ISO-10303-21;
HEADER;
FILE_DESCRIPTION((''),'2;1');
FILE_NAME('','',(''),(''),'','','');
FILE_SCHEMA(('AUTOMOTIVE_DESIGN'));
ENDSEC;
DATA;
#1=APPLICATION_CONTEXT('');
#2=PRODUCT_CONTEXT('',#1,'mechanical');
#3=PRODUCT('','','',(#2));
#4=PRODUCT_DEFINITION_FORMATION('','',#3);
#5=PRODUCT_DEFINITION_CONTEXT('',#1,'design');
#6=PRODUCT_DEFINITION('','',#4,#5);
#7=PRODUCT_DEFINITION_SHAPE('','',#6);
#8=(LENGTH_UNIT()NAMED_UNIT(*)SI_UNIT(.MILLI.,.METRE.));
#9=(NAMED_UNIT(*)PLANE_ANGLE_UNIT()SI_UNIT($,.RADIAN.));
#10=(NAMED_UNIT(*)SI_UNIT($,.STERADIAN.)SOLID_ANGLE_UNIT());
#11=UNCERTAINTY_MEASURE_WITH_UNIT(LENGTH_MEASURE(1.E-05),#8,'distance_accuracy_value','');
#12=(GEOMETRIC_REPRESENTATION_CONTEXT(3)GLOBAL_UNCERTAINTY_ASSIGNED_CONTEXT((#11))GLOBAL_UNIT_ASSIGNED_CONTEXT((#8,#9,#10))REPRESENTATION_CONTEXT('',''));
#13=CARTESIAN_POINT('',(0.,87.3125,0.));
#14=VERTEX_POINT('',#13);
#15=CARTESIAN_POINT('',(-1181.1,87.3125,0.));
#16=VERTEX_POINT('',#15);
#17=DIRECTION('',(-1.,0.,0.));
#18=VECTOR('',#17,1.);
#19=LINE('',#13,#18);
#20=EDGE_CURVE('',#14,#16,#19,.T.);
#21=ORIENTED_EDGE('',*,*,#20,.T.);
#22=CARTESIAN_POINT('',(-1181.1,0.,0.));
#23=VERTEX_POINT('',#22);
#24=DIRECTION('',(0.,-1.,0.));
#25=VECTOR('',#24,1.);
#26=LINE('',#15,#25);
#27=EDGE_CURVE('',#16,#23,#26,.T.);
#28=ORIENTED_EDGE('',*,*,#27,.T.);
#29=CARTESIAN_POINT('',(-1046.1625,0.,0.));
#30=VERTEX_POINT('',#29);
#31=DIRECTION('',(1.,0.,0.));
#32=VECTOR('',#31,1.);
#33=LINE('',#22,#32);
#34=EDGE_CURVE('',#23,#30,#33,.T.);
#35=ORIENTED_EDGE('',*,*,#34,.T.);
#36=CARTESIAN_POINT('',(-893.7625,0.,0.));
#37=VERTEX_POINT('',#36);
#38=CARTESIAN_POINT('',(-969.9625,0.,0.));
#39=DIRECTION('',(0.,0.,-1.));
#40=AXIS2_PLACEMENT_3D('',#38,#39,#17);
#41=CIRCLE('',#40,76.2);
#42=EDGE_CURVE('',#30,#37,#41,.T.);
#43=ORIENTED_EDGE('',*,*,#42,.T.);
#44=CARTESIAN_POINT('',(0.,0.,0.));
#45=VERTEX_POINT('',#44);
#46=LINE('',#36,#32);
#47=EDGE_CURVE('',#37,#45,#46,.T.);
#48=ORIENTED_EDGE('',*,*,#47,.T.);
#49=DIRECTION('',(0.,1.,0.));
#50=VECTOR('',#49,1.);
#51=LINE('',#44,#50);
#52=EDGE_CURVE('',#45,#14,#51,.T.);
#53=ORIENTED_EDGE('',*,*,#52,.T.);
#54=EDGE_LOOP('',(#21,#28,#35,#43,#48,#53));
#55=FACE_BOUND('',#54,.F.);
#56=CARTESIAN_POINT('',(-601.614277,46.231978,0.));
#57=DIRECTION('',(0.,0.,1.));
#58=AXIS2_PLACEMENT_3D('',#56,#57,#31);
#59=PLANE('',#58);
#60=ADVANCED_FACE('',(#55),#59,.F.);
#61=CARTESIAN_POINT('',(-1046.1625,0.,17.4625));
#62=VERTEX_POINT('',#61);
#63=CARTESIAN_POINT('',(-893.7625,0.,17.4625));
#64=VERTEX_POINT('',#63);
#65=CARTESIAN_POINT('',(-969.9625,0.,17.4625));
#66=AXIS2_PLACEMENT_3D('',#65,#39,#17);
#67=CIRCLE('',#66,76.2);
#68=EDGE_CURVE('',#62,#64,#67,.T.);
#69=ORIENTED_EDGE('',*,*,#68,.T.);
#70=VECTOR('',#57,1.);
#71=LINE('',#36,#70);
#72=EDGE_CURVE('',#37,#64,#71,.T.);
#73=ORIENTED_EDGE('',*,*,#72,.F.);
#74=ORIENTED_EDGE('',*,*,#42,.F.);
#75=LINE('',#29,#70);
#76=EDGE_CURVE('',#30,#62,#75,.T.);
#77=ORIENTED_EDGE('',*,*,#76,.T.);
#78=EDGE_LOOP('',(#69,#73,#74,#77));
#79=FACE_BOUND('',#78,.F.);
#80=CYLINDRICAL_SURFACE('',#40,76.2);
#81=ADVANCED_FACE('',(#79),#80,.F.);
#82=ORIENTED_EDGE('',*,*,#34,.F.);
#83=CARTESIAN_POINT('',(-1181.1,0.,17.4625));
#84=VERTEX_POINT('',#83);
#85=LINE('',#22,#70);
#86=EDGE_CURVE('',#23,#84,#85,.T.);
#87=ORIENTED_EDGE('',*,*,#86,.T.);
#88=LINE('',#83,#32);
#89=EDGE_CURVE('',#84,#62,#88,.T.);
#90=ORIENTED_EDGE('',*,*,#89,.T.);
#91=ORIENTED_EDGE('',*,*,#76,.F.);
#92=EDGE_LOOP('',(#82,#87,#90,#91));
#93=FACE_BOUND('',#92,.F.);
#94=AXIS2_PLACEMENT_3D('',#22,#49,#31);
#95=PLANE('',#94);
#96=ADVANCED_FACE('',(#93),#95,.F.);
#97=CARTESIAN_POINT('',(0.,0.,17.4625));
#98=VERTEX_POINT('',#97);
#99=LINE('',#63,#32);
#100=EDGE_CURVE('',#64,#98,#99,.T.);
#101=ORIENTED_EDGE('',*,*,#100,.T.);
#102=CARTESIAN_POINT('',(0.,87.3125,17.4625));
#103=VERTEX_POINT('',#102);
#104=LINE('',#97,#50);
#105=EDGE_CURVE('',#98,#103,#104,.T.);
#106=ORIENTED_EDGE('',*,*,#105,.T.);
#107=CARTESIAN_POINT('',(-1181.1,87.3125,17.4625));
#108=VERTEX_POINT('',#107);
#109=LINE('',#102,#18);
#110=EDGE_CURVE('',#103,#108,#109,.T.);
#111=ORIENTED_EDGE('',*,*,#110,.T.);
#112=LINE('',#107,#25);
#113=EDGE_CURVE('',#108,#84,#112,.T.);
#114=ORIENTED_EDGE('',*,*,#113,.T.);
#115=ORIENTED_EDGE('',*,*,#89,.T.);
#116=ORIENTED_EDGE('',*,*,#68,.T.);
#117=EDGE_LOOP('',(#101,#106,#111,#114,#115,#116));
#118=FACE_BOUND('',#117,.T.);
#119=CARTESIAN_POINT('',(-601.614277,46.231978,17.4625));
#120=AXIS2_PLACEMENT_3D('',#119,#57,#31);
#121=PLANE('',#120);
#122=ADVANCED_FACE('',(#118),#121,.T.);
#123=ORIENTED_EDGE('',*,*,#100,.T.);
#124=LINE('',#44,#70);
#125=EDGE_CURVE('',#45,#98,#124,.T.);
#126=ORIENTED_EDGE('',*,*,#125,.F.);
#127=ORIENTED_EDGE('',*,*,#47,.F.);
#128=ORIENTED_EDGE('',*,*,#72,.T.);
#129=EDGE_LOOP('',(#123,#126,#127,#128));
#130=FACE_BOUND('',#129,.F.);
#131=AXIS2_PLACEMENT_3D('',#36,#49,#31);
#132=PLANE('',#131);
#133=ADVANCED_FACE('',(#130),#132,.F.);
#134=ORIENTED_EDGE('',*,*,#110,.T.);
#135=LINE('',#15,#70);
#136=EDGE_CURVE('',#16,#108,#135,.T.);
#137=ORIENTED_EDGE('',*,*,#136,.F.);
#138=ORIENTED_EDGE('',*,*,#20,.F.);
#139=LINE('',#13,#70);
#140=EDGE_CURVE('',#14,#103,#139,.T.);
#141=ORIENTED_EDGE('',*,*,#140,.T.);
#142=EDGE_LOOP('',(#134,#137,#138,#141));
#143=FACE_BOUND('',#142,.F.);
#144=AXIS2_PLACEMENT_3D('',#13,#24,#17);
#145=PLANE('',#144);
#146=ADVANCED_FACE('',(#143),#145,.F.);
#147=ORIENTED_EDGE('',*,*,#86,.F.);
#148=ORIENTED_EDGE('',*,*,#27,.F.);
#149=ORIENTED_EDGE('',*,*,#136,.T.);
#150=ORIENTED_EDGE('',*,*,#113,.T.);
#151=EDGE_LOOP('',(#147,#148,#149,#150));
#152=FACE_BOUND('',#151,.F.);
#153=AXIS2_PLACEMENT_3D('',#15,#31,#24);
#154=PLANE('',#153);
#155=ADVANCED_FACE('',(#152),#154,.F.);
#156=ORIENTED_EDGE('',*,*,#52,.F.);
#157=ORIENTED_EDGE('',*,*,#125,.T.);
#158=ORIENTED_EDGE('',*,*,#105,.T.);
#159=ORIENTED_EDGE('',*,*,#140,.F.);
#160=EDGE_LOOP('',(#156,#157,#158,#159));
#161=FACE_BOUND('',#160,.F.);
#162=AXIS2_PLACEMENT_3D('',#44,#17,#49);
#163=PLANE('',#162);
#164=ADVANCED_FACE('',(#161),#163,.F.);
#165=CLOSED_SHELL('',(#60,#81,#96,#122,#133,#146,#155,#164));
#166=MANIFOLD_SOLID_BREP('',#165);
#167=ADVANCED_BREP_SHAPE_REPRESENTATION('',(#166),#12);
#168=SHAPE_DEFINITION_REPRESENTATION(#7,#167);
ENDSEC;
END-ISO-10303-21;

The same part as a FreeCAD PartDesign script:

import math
import FreeCAD as App
import Part
import Sketcher
Q = App.Units.Quantity

doc = App.newDocument("Part")
body = doc.addObject("PartDesign::Body", "Body")

# Sketch on XY plane
sketch1 = doc.addObject("Sketcher::SketchObject", "Sketch")
body.addObject(sketch1)
sketch1.AttachmentSupport = (doc.XY_Plane, [""])
sketch1.MapMode = "FlatFace"
sketch1.addGeometry([
    Part.LineSegment(App.Vector(-894, 0, 0), App.Vector(0, 0, 0)),  # 0
    Part.LineSegment(App.Vector(0, 0, 0), App.Vector(0, 87, 0)),  # 1
    Part.LineSegment(App.Vector(0, 87, 0), App.Vector(-1181, 87, 0)),  # 2
    Part.LineSegment(App.Vector(-1181, 87, 0), App.Vector(-1181, 0, 0)),  # 3
    Part.LineSegment(App.Vector(-1181, 0, 0), App.Vector(-1046, 0, 0)),  # 4
    Part.ArcOfCircle(Part.Circle(App.Vector(-970, 0, 0), App.Vector(0, 0, 1), 76), math.radians(0), math.radians(180)),  # 5
], False)
sketch1.addConstraint([
    Sketcher.Constraint("Coincident", 0, 2, 1, 1),
    Sketcher.Constraint("Coincident", 1, 2, 2, 1),
    Sketcher.Constraint("Coincident", 2, 2, 3, 1),
    Sketcher.Constraint("Coincident", 3, 2, 4, 1),
    Sketcher.Constraint("Coincident", 4, 2, 5, 2),
    Sketcher.Constraint("Coincident", 5, 1, 0, 1),
    Sketcher.Constraint("Horizontal", 0),
    Sketcher.Constraint("Vertical", 1),
    Sketcher.Constraint("Horizontal", 2),
    Sketcher.Constraint("Vertical", 3),
    Sketcher.Constraint("Horizontal", 4),
    Sketcher.Constraint("Coincident", 0, 2, -1, 1),
    Sketcher.Constraint("PointOnObject", 5, 3, -1),
    Sketcher.Constraint("PointOnObject", 3, 2, -1),
    Sketcher.Constraint("Radius", 5, Q("3 in")),
    Sketcher.Constraint("DistanceX", 2, 2, 2, 1, Q("46.5 in")),
    Sketcher.Constraint("DistanceX", 0, 1, 0, 2, Q("35.1875 in")),
    Sketcher.Constraint("DistanceY", 1, 1, 1, 2, Q("3.4375 in")),
])
pad1 = doc.addObject("PartDesign::Pad", "Pad")
body.addObject(pad1)
pad1.Profile = sketch1
pad1.Length = Q("0.6875 in")

doc.recompute()
